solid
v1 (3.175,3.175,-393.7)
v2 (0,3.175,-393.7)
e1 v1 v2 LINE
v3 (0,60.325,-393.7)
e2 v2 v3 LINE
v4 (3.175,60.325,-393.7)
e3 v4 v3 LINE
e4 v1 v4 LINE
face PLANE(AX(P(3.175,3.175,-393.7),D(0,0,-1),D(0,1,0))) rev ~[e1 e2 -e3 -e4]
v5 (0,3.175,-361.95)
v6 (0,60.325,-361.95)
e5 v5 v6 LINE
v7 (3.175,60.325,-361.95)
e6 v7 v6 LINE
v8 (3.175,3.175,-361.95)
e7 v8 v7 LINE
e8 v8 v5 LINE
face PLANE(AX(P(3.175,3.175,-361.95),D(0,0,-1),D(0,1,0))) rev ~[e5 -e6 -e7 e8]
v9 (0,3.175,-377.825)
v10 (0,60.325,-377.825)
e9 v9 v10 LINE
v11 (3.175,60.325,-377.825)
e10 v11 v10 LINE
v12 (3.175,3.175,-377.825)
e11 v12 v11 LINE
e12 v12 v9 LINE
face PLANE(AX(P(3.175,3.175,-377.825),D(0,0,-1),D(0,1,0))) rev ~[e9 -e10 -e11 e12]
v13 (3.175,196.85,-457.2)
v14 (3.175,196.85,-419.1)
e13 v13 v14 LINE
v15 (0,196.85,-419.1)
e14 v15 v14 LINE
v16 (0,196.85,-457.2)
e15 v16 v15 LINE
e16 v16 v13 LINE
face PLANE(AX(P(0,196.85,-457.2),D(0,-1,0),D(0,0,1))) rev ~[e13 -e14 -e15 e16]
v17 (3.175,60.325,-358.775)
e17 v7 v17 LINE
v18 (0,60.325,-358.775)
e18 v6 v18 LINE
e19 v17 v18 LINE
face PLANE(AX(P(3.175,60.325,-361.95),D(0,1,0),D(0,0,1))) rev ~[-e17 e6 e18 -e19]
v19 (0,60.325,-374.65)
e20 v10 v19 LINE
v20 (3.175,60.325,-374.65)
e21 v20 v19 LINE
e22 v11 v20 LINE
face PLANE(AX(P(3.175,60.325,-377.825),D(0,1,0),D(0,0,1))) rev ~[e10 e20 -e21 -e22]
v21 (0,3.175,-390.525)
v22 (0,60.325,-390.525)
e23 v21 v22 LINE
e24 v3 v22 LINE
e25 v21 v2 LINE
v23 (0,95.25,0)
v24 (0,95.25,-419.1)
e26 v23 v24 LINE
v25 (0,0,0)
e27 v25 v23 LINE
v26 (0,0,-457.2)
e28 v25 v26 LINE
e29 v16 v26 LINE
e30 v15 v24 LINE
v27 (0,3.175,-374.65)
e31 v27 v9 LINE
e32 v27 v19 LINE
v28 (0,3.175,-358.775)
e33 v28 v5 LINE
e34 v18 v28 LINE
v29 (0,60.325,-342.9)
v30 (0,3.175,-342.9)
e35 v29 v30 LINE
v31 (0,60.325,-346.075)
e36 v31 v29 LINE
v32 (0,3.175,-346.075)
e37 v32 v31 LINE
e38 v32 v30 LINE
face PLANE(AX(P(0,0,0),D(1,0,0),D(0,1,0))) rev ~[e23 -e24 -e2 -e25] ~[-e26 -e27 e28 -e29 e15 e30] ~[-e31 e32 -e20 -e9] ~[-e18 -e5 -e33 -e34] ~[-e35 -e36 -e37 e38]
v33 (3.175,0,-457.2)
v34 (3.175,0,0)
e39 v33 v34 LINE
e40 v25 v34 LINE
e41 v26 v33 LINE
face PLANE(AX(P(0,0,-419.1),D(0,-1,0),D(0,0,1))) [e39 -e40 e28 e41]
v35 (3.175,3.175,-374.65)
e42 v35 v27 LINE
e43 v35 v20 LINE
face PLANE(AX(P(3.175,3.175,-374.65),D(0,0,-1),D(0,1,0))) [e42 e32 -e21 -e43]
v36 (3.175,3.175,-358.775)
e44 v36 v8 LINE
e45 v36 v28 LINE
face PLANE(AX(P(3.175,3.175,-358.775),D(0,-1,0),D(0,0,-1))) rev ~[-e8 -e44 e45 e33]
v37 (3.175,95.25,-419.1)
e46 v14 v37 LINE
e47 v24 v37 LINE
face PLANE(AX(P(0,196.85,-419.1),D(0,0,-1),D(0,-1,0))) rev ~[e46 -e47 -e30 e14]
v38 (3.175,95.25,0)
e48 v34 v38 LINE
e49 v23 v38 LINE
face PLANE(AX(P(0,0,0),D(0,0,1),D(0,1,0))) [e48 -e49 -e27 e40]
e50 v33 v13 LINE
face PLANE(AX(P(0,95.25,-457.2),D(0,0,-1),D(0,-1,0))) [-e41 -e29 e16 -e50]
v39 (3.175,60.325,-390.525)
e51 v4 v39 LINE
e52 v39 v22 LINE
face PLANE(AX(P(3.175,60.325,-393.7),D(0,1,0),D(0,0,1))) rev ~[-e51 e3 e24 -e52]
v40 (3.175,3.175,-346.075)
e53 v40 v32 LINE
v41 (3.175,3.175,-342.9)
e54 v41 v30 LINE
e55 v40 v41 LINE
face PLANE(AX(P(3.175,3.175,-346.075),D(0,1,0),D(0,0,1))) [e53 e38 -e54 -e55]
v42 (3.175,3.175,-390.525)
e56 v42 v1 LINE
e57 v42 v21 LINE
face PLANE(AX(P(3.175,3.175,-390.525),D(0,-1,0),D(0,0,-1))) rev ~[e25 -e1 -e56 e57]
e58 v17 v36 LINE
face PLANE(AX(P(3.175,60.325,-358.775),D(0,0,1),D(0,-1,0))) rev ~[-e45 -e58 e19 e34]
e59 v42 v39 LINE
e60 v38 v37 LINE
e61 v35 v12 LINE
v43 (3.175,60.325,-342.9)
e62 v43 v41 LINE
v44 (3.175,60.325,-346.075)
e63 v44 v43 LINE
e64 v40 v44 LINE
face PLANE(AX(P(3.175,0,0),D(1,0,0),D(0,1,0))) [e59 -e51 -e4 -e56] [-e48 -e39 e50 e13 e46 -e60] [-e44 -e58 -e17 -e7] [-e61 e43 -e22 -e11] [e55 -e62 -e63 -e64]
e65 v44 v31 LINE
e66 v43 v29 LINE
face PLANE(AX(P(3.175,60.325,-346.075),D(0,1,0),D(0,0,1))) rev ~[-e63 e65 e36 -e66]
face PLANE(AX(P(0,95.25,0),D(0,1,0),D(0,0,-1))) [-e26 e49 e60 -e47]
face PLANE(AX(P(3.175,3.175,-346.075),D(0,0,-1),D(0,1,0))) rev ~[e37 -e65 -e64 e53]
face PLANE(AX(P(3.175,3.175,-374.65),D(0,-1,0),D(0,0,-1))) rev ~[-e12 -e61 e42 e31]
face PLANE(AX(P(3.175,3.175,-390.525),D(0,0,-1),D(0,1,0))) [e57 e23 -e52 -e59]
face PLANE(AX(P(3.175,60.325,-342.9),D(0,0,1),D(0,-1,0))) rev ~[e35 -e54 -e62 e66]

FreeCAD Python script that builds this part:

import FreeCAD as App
import Part
import Sketcher
Q = App.Units.Quantity

doc = App.newDocument("Part")
params = doc.addObject("Spreadsheet::Sheet", "Params")
for row, (alias, value) in enumerate([
    ("sketch1_width", "4 in"),
    ("sketch1_height", "18 in"),
    ("sketch1_height2", "1.5 in"),
    ("sketch1_width2", "3.75 in"),
    ("pad1_length", "0.125 in"),
    ("sketch2_width", "2.25 in"),
    ("pocket1_length", "1 in"),
], start=1):
    params.set(f"A{row}", alias)
    params.set(f"B{row}", "=" + value)
    params.setAlias(f"B{row}", alias)

body = doc.addObject("PartDesign::Body", "Body")

sketch1 = doc.addObject("Sketcher::SketchObject", "Sketch")
body.addObject(sketch1)
sketch1.AttachmentSupport = (doc.YZ_Plane, [""])
sketch1.MapMode = "FlatFace"
sketch1.addGeometry(Part.LineSegment(App.Vector(95, 0, 0), App.Vector(0, 0, 0)), False)
sketch1.addGeometry(Part.LineSegment(App.Vector(0, 0, 0), App.Vector(0, -457, 0)), False)
sketch1.addGeometry(Part.LineSegment(App.Vector(0, -457, 0), App.Vector(197, -457, 0)), False)
sketch1.addGeometry(Part.LineSegment(App.Vector(197, -457, 0), App.Vector(197, -419, 0)), False)
sketch1.addGeometry(Part.LineSegment(App.Vector(197, -419, 0), App.Vector(95, -419, 0)), False)
sketch1.addGeometry(Part.LineSegment(App.Vector(95, -419, 0), App.Vector(95, 0, 0)), False)
sketch1.addConstraint(Sketcher.Constraint("Coincident", 0, 2, 1, 1))
sketch1.addConstraint(Sketcher.Constraint("Coincident", 1, 2, 2, 1))
sketch1.addConstraint(Sketcher.Constraint("Coincident", 2, 2, 3, 1))
sketch1.addConstraint(Sketcher.Constraint("Coincident", 3, 2, 4, 1))
sketch1.addConstraint(Sketcher.Constraint("Coincident", 4, 2, 5, 1))
sketch1.addConstraint(Sketcher.Constraint("Coincident", 5, 2, 0, 1))
sketch1.addConstraint(Sketcher.Constraint("Horizontal", 0))
sketch1.addConstraint(Sketcher.Constraint("Vertical", 1))
sketch1.addConstraint(Sketcher.Constraint("Horizontal", 2))
sketch1.addConstraint(Sketcher.Constraint("Vertical", 3))
sketch1.addConstraint(Sketcher.Constraint("Horizontal", 4))
sketch1.addConstraint(Sketcher.Constraint("Vertical", 5))
sketch1.addConstraint(Sketcher.Constraint("Coincident", 0, 2, -1, 1))
sketch1.addConstraint(Sketcher.Constraint("DistanceX", 4, 2, 4, 1, Q("4 in")))
sketch1.addConstraint(Sketcher.Constraint("DistanceY", 1, 2, 1, 1, Q("18 in")))
sketch1.addConstraint(Sketcher.Constraint("DistanceY", 3, 1, 3, 2, Q("1.5 in")))
sketch1.addConstraint(Sketcher.Constraint("DistanceX", 0, 2, 0, 1, Q("3.75 in")))
sketch1.setExpression("Constraints[13]", "Params.sketch1_width")
sketch1.setExpression("Constraints[14]", "Params.sketch1_height")
sketch1.setExpression("Constraints[15]", "Params.sketch1_height2")
sketch1.setExpression("Constraints[16]", "Params.sketch1_width2")
pad1 = doc.addObject("PartDesign::Pad", "Pad")
body.addObject(pad1)
pad1.Profile = sketch1
pad1.setExpression("Length", "Params.pad1_length")

sketch2 = doc.addObject("Sketcher::SketchObject", "Sketch001")
body.addObject(sketch2)
sketch2.AttachmentSupport = (doc.YZ_Plane, [""])
sketch2.MapMode = "FlatFace"
sketch2.AttachmentOffset = App.Placement(App.Vector(0, 0, 0.125 * 25.4), App.Rotation())
sketch2.addGeometry(Part.LineSegment(App.Vector(3.2, -393.7, 0), App.Vector(60.3, -393.7, 0)), False)
sketch2.addGeometry(Part.LineSegment(App.Vector(60.3, -393.7, 0), App.Vector(60.3, -390.5, 0)), False)
sketch2.addGeometry(Part.LineSegment(App.Vector(60.3, -390.5, 0), App.Vector(3.2, -390.5, 0)), False)
sketch2.addGeometry(Part.LineSegment(App.Vector(3.2, -390.5, 0), App.Vector(3.2, -393.7, 0)), False)
sketch2.addGeometry(Part.LineSegment(App.Vector(3.2, -377.8, 0), App.Vector(60.3, -377.8, 0)), False)
sketch2.addGeometry(Part.LineSegment(App.Vector(60.3, -377.8, 0), App.Vector(60.3, -374.6, 0)), False)
sketch2.addGeometry(Part.LineSegment(App.Vector(60.3, -374.6, 0), App.Vector(3.2, -374.6, 0)), False)
sketch2.addGeometry(Part.LineSegment(App.Vector(3.2, -374.6, 0), App.Vector(3.2, -377.8, 0)), False)
sketch2.addGeometry(Part.LineSegment(App.Vector(3.2, -361.9, 0), App.Vector(60.3, -361.9, 0)), False)
sketch2.addGeometry(Part.LineSegment(App.Vector(60.3, -361.9, 0), App.Vector(60.3, -358.8, 0)), False)
sketch2.addGeometry(Part.LineSegment(App.Vector(60.3, -358.8, 0), App.Vector(3.2, -358.8, 0)), False)
sketch2.addGeometry(Part.LineSegment(App.Vector(3.2, -358.8, 0), App.Vector(3.2, -361.9, 0)), False)
sketch2.addGeometry(Part.LineSegment(App.Vector(3.2, -346.1, 0), App.Vector(60.3, -346.1, 0)), False)
sketch2.addGeometry(Part.LineSegment(App.Vector(60.3, -346.1, 0), App.Vector(60.3, -342.9, 0)), False)
sketch2.addGeometry(Part.LineSegment(App.Vector(60.3, -342.9, 0), App.Vector(3.2, -342.9, 0)), False)
sketch2.addGeometry(Part.LineSegment(App.Vector(3.2, -342.9, 0), App.Vector(3.2, -346.1, 0)), False)
sketch2.addConstraint(Sketcher.Constraint("Coincident", 0, 2, 1, 1))
sketch2.addConstraint(Sketcher.Constraint("Coincident", 1, 2, 2, 1))
sketch2.addConstraint(Sketcher.Constraint("Coincident", 2, 2, 3, 1))
sketch2.addConstraint(Sketcher.Constraint("Coincident", 3, 2, 0, 1))
sketch2.addConstraint(Sketcher.Constraint("Coincident", 4, 2, 5, 1))
sketch2.addConstraint(Sketcher.Constraint("Coincident", 5, 2, 6, 1))
sketch2.addConstraint(Sketcher.Constraint("Coincident", 6, 2, 7, 1))
sketch2.addConstraint(Sketcher.Constraint("Coincident", 7, 2, 4, 1))
sketch2.addConstraint(Sketcher.Constraint("Coincident", 8, 2, 9, 1))
sketch2.addConstraint(Sketcher.Constraint("Coincident", 9, 2, 10, 1))
sketch2.addConstraint(Sketcher.Constraint("Coincident", 10, 2, 11, 1))
sketch2.addConstraint(Sketcher.Constraint("Coincident", 11, 2, 8, 1))
sketch2.addConstraint(Sketcher.Constraint("Coincident", 12, 2, 13, 1))
sketch2.addConstraint(Sketcher.Constraint("Coincident", 13, 2, 14, 1))
sketch2.addConstraint(Sketcher.Constraint("Coincident", 14, 2, 15, 1))
sketch2.addConstraint(Sketcher.Constraint("Coincident", 15, 2, 12, 1))
sketch2.addConstraint(Sketcher.Constraint("Horizontal", 0))
sketch2.addConstraint(Sketcher.Constraint("Vertical", 1))
sketch2.addConstraint(Sketcher.Constraint("Horizontal", 2))
sketch2.addConstraint(Sketcher.Constraint("Vertical", 3))
sketch2.addConstraint(Sketcher.Constraint("Horizontal", 4))
sketch2.addConstraint(Sketcher.Constraint("Vertical", 5))
sketch2.addConstraint(Sketcher.Constraint("Horizontal", 6))
sketch2.addConstraint(Sketcher.Constraint("Vertical", 7))
sketch2.addConstraint(Sketcher.Constraint("Horizontal", 8))
sketch2.addConstraint(Sketcher.Constraint("Vertical", 9))
sketch2.addConstraint(Sketcher.Constraint("Horizontal", 10))
sketch2.addConstraint(Sketcher.Constraint("Vertical", 11))
sketch2.addConstraint(Sketcher.Constraint("Horizontal", 12))
sketch2.addConstraint(Sketcher.Constraint("Vertical", 13))
sketch2.addConstraint(Sketcher.Constraint("Horizontal", 14))
sketch2.addConstraint(Sketcher.Constraint("Vertical", 15))
sketch2.addConstraint(Sketcher.Constraint("Vertical", 1, 2, 4, 2))
sketch2.addConstraint(Sketcher.Constraint("Vertical", 3, 2, 6, 2))
sketch2.addConstraint(Sketcher.Constraint("Vertical", 5, 2, 8, 2))
sketch2.addConstraint(Sketcher.Constraint("Vertical", 7, 2, 10, 2))
sketch2.addConstraint(Sketcher.Constraint("Vertical", 9, 2, 12, 2))
sketch2.addConstraint(Sketcher.Constraint("Vertical", 11, 2, 14, 2))
sketch2.addConstraint(Sketcher.Constraint("Equal", 3, 5))
sketch2.addConstraint(Sketcher.Constraint("Equal", 7, 9))
sketch2.addConstraint(Sketcher.Constraint("Equal", 11, 13))
sketch2.addConstraint(Sketcher.Constraint("DistanceX", 0, 1, 0, 2, Q("2.25 in")))
sketch2.addConstraint(Sketcher.Constraint("DistanceY", 0, 2, -1, 1, Q("15.5 in")))
sketch2.addConstraint(Sketcher.Constraint("DistanceY", 13, 2, -1, 1, Q("13.5 in")))
sketch2.addConstraint(Sketcher.Constraint("DistanceY", 1, 2, 4, 2, Q("0.5 in")))
sketch2.addConstraint(Sketcher.Constraint("DistanceY", 5, 2, 8, 2, Q("0.5 in")))
sketch2.addConstraint(Sketcher.Constraint("DistanceY", 9, 2, 12, 2, Q("0.5 in")))
sketch2.addConstraint(Sketcher.Constraint("DistanceX", -1, 1, 0, 2, Q("2.375 in")))
sketch2.setExpression("Constraints[41]", "Params.sketch2_width")
pocket1 = doc.addObject("PartDesign::Pocket", "Pocket")
body.addObject(pocket1)
pocket1.Profile = sketch2
pocket1.setExpression("Length", "Params.pocket1_length")

doc.recompute()
